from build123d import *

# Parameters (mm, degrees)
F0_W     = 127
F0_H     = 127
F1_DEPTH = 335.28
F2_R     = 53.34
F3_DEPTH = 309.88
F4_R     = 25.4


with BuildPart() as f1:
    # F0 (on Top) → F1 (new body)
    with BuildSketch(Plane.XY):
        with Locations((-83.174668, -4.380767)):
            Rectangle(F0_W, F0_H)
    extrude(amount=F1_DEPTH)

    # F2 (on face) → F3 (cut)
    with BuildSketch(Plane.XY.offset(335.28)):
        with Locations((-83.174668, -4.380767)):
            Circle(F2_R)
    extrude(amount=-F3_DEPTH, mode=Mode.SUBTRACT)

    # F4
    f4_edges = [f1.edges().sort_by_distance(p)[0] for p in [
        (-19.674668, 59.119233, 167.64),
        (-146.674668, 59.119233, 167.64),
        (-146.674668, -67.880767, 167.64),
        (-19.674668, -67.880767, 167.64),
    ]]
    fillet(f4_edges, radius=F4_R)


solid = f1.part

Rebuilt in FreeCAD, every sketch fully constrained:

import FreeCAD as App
import Part
import Sketcher

V = App.Vector
Q = App.Units.Quantity


def edges_at(feature, points):
    """Names of the edges that pass closest to the given points."""
    edges = feature.Shape.Edges
    near = lambda p: min(range(len(edges)), key=lambda i: edges[i].distToShape(Part.Vertex(*p))[0])
    return sorted({f"Edge{near(p) + 1}" for p in points})


def add_polygon(sketch, points):
    """Adds a closed chain of lines whose ends are joined by coincident constraints."""
    first, n = sketch.GeometryCount, len(points)
    for a, b in zip(points, points[1:] + points[:1]):
        sketch.addGeometry(Part.LineSegment(App.Vector(*a, 0), App.Vector(*b, 0)), False)
    for i in range(n):
        sketch.addConstraint(Sketcher.Constraint("Coincident", first + i, 2, first + (i + 1) % n, 1))

doc = App.newDocument("Part")
body = doc.addObject("PartDesign::Body", "Body")

sketch1 = body.newObject("Sketcher::SketchObject", "Sketch")
sketch1.AttachmentSupport = (doc.getObject("XY_Plane"), [""])
sketch1.MapMode = "FlatFace"
add_polygon(sketch1, [(-146.674668, 59.119233), (-146.674668, -67.880767), (-19.674668, -67.880767), (-19.674668, 59.119233)])
sketch1.addConstraint(Sketcher.Constraint("Vertical", 0))
sketch1.addConstraint(Sketcher.Constraint("Horizontal", 1))
sketch1.addConstraint(Sketcher.Constraint("Vertical", 2))
sketch1.addConstraint(Sketcher.Constraint("Horizontal", 3))
sketch1.addConstraint(Sketcher.Constraint("Equal", 3, 0))
sketch1.addConstraint(Sketcher.Constraint("DistanceX", 1, 1, 1, 2, Q("5 in")))
sketch1.addConstraint(Sketcher.Constraint("DistanceX", 0, 2, -1, 1, 146.674668))
sketch1.addConstraint(Sketcher.Constraint("DistanceY", 0, 2, -1, 1, 67.880767))
pad1 = body.newObject("PartDesign::Pad", "Pad")
pad1.Profile = sketch1
pad1.Length = Q("13.2 in")

sketch2 = body.newObject("Sketcher::SketchObject", "Sketch001")
sketch2.AttachmentSupport = (doc.getObject("XY_Plane"), [""])
sketch2.MapMode = "FlatFace"
sketch2.AttachmentOffset = App.Placement(V(0, 0, 13.2 * 25.4), App.Rotation())
sketch2.addGeometry(Part.Circle(V(-83.174668, -4.380767, 0), V(0, 0, 1), 53.34), False)
sketch2.addConstraint(Sketcher.Constraint("Diameter", 0, Q("4.2 in")))
sketch2.addConstraint(Sketcher.Constraint("DistanceX", 0, 3, -1, 1, 83.174668))
sketch2.addConstraint(Sketcher.Constraint("DistanceY", 0, 3, -1, 1, 4.380767))
pocket1 = body.newObject("PartDesign::Pocket", "Pocket")
pocket1.Profile = sketch2
pocket1.Length = Q("12.2 in")
doc.recompute()

fillet = body.newObject("PartDesign::Fillet", "Fillet")
fillet.Base = (pocket1, edges_at(pocket1, [
    (-19.675, 59.119, 167.64),
    (-146.675, 59.119, 167.64),
    (-146.675, -67.881, 167.64),
    (-19.675, -67.881, 167.64),
]))
fillet.Radius = Q("1 in")

doc.recompute()
